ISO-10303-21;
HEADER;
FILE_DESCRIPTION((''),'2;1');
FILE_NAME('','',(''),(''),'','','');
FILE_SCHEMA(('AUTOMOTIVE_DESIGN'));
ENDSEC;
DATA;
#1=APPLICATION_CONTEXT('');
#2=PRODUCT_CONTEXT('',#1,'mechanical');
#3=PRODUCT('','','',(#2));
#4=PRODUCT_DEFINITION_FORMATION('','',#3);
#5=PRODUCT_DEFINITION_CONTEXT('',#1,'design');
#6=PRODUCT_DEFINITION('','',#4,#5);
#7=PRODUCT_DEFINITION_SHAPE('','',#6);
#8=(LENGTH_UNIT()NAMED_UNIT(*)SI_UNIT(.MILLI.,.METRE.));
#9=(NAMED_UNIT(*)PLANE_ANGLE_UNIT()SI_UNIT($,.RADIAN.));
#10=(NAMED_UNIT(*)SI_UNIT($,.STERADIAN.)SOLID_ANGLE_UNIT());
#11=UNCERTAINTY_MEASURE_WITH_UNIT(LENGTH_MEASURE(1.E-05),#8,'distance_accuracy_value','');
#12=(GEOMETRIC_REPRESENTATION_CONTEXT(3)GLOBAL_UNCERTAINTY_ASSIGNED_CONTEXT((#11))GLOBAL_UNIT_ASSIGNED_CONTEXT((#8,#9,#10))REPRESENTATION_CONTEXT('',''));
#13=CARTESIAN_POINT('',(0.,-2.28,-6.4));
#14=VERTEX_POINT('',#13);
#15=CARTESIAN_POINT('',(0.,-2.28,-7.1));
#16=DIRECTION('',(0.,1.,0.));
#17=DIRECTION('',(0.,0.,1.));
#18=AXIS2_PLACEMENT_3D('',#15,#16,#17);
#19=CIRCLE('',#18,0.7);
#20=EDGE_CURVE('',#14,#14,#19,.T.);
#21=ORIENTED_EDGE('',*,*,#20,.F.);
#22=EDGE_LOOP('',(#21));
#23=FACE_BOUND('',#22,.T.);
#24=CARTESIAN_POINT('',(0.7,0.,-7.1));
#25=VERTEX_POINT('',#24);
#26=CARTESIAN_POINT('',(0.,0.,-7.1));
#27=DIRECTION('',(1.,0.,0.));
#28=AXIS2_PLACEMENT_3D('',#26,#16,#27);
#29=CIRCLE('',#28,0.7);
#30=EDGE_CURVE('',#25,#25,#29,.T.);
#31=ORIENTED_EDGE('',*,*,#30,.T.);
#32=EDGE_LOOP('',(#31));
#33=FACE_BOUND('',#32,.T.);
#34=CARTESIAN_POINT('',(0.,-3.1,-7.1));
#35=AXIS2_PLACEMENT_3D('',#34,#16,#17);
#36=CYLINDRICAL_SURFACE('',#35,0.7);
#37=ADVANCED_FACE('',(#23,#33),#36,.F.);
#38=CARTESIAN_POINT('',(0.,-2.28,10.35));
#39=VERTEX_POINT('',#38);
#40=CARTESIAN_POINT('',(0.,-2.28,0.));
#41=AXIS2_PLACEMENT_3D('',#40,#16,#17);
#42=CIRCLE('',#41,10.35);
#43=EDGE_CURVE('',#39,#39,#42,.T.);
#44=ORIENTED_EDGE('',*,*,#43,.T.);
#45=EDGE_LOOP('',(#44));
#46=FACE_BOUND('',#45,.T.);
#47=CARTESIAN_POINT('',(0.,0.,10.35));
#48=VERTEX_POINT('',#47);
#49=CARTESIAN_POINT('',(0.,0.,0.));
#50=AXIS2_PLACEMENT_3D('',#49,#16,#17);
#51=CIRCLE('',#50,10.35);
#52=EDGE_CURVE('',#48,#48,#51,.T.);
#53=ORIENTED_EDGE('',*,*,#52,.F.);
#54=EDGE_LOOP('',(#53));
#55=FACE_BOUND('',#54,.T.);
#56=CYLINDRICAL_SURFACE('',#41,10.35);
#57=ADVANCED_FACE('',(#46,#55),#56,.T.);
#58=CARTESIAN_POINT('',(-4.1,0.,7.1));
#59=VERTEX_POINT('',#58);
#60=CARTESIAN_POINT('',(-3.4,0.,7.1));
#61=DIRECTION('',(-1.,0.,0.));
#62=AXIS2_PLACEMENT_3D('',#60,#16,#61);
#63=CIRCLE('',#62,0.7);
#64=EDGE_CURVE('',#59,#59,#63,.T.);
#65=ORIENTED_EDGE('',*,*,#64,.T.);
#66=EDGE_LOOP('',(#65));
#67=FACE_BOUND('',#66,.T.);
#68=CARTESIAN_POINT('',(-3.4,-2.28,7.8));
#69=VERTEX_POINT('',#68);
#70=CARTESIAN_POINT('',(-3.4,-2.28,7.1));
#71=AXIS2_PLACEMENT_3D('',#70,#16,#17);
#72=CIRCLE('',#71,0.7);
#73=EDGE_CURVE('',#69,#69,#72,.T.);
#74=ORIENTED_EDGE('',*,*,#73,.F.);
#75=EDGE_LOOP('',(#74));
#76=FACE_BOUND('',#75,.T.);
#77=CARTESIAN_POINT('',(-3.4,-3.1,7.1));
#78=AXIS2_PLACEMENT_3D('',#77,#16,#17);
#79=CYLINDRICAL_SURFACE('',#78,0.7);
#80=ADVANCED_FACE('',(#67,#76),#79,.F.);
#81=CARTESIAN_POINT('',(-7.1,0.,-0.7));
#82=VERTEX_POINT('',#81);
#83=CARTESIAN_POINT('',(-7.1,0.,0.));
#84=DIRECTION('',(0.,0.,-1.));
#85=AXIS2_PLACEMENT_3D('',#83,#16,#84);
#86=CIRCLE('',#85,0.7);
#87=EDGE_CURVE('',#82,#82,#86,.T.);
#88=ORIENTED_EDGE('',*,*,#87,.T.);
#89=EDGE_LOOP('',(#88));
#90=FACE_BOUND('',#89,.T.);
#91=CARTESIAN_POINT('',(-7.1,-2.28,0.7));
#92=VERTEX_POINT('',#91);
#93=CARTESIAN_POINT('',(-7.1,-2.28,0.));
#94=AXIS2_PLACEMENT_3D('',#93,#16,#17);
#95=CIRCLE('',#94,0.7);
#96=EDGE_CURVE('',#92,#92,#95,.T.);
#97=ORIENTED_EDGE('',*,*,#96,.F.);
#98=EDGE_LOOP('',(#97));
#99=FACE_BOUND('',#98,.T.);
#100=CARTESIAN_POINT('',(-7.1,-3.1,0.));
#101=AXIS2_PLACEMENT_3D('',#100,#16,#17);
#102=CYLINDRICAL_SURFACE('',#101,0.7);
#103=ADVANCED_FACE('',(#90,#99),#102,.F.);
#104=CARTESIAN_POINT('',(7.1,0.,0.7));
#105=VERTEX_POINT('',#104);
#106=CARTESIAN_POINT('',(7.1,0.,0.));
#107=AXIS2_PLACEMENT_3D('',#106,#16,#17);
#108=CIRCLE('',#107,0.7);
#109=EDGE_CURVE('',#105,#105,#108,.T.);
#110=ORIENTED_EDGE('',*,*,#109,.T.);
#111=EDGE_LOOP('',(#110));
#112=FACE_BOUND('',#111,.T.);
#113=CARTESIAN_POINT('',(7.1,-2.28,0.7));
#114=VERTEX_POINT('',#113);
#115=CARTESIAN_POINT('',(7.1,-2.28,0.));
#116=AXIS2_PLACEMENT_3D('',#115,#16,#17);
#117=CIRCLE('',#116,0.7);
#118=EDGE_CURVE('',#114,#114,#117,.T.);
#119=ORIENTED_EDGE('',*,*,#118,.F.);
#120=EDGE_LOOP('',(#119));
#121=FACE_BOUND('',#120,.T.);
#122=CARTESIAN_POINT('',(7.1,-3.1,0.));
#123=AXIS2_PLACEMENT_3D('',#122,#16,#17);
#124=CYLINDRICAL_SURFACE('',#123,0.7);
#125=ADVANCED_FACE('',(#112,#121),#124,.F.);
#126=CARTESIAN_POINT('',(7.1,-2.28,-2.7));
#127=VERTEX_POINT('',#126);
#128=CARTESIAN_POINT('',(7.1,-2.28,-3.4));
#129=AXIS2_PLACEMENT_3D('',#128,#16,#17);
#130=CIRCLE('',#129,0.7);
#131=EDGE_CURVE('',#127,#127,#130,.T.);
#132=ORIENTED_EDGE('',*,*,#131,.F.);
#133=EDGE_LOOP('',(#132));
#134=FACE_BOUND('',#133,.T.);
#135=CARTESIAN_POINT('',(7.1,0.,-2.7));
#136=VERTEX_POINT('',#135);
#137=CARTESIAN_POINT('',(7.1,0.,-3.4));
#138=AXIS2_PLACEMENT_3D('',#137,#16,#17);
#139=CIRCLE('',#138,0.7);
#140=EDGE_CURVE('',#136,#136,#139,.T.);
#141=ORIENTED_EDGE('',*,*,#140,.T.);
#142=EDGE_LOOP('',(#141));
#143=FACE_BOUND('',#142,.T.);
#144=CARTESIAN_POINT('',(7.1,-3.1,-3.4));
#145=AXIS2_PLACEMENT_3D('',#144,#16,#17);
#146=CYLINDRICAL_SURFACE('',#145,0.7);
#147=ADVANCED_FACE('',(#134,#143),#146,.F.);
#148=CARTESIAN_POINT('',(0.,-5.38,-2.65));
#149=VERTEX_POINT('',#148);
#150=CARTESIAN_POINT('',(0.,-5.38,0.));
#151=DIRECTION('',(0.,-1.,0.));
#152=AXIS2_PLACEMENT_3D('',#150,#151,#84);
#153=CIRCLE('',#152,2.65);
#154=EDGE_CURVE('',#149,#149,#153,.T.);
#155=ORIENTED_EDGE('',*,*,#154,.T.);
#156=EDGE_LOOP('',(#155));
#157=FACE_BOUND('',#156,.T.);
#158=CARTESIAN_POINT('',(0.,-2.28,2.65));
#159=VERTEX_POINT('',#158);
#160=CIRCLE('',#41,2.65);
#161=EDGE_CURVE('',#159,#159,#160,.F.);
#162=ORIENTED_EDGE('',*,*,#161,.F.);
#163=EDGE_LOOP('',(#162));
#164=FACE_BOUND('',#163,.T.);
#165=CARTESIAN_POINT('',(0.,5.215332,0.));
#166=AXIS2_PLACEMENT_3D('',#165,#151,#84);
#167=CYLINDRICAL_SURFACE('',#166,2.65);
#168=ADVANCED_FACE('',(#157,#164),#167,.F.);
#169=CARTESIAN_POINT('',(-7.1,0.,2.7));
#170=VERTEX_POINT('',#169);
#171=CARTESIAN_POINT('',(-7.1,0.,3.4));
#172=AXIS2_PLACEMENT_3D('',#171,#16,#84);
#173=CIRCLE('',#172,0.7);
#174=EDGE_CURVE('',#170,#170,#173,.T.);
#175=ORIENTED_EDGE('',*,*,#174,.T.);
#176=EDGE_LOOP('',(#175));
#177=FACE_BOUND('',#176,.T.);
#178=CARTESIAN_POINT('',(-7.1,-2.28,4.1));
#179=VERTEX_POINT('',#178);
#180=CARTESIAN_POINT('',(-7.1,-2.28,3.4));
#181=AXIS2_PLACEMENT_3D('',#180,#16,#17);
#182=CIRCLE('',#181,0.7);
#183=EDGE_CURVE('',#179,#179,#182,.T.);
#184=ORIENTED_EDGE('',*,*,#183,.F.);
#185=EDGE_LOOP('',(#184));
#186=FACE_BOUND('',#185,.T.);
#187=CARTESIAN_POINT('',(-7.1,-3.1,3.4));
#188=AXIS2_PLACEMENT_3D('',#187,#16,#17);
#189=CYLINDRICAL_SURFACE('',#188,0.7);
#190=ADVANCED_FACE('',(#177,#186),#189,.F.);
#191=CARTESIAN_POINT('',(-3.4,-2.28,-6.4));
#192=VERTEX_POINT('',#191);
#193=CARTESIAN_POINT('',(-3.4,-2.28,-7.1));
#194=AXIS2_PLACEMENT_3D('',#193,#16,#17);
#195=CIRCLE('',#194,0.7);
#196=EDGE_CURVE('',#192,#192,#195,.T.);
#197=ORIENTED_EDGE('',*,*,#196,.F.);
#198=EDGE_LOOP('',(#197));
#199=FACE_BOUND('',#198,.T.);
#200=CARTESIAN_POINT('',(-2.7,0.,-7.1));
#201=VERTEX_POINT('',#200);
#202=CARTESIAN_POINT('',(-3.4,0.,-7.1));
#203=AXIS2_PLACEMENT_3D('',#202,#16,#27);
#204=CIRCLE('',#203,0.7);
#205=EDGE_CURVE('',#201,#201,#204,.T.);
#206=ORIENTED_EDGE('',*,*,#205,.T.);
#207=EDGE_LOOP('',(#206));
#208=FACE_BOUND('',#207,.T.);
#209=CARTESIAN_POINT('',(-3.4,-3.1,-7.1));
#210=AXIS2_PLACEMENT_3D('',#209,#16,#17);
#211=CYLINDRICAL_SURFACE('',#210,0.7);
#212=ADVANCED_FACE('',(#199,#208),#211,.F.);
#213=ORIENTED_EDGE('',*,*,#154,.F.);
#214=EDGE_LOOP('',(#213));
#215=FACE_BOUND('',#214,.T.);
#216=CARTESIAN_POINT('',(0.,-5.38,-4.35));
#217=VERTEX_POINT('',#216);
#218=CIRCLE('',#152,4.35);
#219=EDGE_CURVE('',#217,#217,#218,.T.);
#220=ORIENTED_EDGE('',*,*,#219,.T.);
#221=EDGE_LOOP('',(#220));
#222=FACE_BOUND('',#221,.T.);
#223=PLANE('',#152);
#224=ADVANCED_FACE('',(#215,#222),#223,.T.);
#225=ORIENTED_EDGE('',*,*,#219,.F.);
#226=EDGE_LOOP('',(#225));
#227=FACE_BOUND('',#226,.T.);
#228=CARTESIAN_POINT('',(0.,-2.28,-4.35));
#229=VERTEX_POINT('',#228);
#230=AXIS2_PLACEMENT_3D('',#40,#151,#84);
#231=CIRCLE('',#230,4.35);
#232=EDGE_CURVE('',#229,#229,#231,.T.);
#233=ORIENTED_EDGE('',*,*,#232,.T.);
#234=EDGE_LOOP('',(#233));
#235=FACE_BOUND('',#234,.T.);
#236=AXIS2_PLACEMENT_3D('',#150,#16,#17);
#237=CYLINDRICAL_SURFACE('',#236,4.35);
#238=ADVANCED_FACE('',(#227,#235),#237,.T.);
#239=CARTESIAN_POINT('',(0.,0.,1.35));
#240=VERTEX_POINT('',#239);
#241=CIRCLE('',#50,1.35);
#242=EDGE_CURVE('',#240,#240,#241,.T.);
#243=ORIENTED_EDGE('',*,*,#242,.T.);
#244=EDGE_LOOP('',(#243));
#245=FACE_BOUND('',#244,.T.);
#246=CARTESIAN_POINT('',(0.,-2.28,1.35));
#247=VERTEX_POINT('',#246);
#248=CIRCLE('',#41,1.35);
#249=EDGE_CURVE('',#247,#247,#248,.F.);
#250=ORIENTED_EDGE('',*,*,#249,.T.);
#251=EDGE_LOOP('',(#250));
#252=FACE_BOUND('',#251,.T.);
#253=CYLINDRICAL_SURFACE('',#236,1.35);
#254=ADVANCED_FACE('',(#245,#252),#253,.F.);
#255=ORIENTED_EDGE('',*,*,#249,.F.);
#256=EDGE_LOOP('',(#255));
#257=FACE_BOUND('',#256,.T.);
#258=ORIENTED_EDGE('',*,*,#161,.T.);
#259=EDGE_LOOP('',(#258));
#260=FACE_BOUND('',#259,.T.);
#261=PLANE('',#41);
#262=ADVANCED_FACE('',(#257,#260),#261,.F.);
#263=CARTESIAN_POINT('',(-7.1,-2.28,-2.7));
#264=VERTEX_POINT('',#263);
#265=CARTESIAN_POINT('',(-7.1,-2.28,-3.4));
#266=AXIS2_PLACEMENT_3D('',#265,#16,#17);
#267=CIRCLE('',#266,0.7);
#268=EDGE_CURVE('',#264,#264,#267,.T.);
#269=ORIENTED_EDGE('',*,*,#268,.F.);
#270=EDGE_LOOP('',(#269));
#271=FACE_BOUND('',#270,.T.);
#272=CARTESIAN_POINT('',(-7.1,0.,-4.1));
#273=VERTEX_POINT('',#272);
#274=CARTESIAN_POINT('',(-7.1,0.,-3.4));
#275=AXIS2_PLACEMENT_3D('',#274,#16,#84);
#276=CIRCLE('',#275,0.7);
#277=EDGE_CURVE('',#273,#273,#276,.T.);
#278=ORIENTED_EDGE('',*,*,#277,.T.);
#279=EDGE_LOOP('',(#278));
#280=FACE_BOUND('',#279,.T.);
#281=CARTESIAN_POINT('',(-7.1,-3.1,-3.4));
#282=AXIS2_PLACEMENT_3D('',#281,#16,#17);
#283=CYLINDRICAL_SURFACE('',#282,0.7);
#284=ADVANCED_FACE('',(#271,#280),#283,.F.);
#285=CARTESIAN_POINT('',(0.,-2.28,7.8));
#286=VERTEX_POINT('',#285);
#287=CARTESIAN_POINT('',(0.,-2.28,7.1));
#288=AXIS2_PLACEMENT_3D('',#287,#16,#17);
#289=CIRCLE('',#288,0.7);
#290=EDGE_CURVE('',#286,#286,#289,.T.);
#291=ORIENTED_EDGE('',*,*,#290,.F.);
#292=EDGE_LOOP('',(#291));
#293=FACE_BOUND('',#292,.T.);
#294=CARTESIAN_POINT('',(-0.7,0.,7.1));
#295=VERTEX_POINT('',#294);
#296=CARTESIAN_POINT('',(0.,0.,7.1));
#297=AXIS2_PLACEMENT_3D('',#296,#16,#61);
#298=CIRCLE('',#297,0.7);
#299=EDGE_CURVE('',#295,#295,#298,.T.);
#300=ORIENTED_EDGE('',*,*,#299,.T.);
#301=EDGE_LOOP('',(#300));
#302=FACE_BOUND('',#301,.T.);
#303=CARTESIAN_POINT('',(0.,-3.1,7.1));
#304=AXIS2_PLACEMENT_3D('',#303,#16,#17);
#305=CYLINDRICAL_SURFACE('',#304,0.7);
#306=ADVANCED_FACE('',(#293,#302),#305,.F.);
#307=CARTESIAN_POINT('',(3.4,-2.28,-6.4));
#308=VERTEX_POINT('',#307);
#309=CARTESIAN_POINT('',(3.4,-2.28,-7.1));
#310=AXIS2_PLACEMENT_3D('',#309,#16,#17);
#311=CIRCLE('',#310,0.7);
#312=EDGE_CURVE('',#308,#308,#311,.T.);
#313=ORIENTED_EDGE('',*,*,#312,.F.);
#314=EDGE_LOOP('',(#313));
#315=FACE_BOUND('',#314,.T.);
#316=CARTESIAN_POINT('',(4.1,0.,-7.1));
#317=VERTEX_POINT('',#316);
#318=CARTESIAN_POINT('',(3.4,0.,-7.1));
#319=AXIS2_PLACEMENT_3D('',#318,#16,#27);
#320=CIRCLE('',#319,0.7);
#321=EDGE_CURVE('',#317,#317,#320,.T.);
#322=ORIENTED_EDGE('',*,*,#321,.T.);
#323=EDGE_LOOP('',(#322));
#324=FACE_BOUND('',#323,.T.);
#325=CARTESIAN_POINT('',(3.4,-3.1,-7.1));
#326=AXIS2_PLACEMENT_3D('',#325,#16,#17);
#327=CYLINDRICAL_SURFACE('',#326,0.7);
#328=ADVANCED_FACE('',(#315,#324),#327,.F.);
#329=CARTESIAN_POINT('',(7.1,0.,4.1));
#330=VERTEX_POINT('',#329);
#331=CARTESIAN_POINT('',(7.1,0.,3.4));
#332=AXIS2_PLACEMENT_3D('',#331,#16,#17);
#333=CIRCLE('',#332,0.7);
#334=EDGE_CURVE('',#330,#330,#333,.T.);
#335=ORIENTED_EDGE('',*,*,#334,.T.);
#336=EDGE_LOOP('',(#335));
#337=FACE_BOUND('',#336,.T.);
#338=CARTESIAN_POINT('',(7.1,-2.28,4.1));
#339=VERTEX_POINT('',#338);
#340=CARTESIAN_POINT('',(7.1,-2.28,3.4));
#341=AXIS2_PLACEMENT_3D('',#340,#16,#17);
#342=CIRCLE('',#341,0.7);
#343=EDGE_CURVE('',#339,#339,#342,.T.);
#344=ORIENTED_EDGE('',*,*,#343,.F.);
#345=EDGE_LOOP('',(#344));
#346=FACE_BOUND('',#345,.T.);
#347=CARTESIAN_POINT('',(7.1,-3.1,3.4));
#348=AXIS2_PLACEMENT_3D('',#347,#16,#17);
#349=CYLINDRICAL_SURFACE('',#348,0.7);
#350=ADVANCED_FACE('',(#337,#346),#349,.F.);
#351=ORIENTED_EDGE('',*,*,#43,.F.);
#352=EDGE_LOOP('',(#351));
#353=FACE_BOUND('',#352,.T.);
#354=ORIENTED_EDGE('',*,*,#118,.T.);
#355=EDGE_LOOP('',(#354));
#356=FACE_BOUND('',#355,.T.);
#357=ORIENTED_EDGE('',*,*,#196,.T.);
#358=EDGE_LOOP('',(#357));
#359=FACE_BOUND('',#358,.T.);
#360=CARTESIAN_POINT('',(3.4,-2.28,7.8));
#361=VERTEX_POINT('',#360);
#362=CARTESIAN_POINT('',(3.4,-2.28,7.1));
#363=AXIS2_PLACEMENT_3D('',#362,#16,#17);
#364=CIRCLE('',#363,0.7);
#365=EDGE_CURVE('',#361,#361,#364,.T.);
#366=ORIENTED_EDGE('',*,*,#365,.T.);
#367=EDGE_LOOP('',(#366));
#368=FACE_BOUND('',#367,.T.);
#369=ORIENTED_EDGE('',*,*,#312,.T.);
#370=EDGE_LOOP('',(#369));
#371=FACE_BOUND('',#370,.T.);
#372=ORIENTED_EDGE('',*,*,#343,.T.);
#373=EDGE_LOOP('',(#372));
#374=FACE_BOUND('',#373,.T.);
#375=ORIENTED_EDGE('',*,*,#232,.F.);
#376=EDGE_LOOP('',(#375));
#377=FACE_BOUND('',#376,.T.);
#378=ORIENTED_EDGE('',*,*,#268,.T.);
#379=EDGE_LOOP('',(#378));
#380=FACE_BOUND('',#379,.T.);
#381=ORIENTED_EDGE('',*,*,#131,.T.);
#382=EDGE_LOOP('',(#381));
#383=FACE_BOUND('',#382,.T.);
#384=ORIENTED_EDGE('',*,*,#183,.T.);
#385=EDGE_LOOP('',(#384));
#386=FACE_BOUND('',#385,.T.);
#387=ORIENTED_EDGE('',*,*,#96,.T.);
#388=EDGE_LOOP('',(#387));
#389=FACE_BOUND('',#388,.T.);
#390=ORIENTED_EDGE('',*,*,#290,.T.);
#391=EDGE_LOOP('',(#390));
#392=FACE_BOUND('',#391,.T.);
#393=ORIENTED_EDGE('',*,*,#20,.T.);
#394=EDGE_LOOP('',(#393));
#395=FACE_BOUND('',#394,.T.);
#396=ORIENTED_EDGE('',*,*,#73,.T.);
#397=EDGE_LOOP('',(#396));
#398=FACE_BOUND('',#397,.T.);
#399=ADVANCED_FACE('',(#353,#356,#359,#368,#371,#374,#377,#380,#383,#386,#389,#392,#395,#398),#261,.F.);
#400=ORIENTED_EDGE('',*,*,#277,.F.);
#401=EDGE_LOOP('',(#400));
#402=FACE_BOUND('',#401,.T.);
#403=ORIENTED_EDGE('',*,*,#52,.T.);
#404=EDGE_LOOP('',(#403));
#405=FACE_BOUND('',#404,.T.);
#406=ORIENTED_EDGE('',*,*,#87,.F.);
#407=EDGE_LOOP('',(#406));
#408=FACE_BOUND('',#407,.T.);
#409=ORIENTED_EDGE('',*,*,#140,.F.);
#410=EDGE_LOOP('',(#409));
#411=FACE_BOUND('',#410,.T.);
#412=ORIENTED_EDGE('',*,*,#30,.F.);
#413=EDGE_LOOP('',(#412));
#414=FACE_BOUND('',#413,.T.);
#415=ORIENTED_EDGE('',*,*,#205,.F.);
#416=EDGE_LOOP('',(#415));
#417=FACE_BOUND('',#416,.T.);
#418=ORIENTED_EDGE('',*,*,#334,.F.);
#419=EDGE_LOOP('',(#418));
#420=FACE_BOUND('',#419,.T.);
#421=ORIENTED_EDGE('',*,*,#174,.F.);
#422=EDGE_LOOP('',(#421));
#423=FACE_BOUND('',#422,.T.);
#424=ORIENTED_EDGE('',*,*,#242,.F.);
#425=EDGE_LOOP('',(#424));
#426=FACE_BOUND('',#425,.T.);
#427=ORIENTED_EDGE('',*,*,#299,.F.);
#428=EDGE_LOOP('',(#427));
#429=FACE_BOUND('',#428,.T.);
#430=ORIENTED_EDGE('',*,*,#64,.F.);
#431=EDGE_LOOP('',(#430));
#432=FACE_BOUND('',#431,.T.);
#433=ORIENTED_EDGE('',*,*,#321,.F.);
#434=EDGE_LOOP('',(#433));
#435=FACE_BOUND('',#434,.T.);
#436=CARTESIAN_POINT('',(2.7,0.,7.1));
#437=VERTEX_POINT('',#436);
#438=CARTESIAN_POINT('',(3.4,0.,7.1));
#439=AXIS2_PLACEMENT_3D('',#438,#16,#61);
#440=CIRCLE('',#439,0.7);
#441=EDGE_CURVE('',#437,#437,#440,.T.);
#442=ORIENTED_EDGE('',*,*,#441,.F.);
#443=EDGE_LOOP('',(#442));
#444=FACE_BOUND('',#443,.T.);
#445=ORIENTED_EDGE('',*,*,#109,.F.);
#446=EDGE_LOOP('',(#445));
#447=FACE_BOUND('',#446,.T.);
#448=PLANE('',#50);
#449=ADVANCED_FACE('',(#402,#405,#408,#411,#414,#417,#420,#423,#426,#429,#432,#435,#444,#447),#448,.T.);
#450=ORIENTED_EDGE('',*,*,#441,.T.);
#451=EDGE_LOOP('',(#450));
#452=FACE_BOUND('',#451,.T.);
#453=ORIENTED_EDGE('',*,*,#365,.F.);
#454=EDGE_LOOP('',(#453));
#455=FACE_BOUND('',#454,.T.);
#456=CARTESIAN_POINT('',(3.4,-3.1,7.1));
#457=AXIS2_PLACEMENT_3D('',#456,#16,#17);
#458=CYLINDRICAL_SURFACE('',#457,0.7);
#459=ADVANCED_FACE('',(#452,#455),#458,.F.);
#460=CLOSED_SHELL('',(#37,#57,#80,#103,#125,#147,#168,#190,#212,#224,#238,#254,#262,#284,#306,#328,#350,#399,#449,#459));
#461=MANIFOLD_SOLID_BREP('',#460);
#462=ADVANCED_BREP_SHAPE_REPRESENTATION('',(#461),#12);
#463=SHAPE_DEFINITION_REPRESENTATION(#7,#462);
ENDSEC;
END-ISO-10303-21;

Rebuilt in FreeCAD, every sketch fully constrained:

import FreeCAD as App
import Part
import Sketcher
from FreeCAD import Vector

doc = App.newDocument("Part")
params = doc.addObject("Spreadsheet::Sheet", "Params")
for row, (alias, value) in enumerate([
    ("sketch1_diameter", "20.7 mm"),
    ("pad1_length", "2.28 mm"),
    ("sketch2_diameter", "8.7 mm"),
    ("pad2_length", "3.1 mm"),
    ("sketch3_diameter", "2.7 mm"),
    ("sketch4_diameter", "5.3 mm"),
    ("pocket2_length", "3.1 mm"),
    ("sketch5_diameter", "1.4 mm"),
    ("pocket3_length", "3.1 mm"),
], start=1):
    params.set(f"A{row}", alias)
    params.set(f"B{row}", "=" + value)
    params.setAlias(f"B{row}", alias)

body = doc.addObject("PartDesign::Body", "Body")

# Sketch on XZ plane
sketch1 = body.newObject("Sketcher::SketchObject", "Sketch")
sketch1.AttachmentSupport = (doc.getObject("XZ_Plane"), [""])
sketch1.MapMode = "FlatFace"
sketch1.addGeometry(Part.Circle(Vector(0, 0, 0), Vector(0, 0, 1), 10), False)
sketch1.addConstraint(Sketcher.Constraint("Coincident", 0, 3, -1, 1))
sketch1.addConstraint(Sketcher.Constraint("Diameter", 0, 20.7))
sketch1.setExpression("Constraints[1]", "Params.sketch1_diameter")
pad1 = body.newObject("PartDesign::Pad", "Pad")
pad1.Profile = sketch1
pad1.setExpression("Length", "Params.pad1_length")

# Sketch on XZ plane
sketch2 = body.newObject("Sketcher::SketchObject", "Sketch001")
sketch2.AttachmentSupport = (doc.getObject("XZ_Plane"), [""])
sketch2.MapMode = "FlatFace"
sketch2.AttachmentOffset = App.Placement(Vector(0, 0, 2.28), App.Rotation())
sketch2.addGeometry(Part.Circle(Vector(0, 0, 0), Vector(0, 0, 1), 4.3), False)
sketch2.addConstraint(Sketcher.Constraint("Coincident", 0, 3, -1, 1))
sketch2.addConstraint(Sketcher.Constraint("Diameter", 0, 8.7))
sketch2.setExpression("Constraints[1]", "Params.sketch2_diameter")
pad2 = body.newObject("PartDesign::Pad", "Pad001")
pad2.Profile = sketch2
pad2.setExpression("Length", "Params.pad2_length")

# Sketch on XZ plane
sketch3 = body.newObject("Sketcher::SketchObject", "Sketch002")
sketch3.AttachmentSupport = (doc.getObject("XZ_Plane"), [""])
sketch3.MapMode = "FlatFace"
sketch3.addGeometry(Part.Circle(Vector(0, 0, 0), Vector(0, 0, 1), 1.4), False)
sketch3.addConstraint(Sketcher.Constraint("Coincident", 0, 3, -1, 1))
sketch3.addConstraint(Sketcher.Constraint("Diameter", 0, 2.7))
sketch3.setExpression("Constraints[1]", "Params.sketch3_diameter")
pocket1 = body.newObject("PartDesign::Pocket", "Pocket")
pocket1.Profile = sketch3
pocket1.Type = "ThroughAll"
pocket1.Reversed = True

# Sketch on XZ plane
sketch4 = body.newObject("Sketcher::SketchObject", "Sketch003")
sketch4.AttachmentSupport = (doc.getObject("XZ_Plane"), [""])
sketch4.MapMode = "FlatFace"
sketch4.AttachmentOffset = App.Placement(Vector(0, 0, 5.38), App.Rotation())
sketch4.addGeometry(Part.Circle(Vector(0, 0, 0), Vector(0, 0, 1), 2.6), False)
sketch4.addConstraint(Sketcher.Constraint("Coincident", 0, 3, -1, 1))
sketch4.addConstraint(Sketcher.Constraint("Diameter", 0, 5.3))
sketch4.setExpression("Constraints[1]", "Params.sketch4_diameter")
pocket2 = body.newObject("PartDesign::Pocket", "Pocket001")
pocket2.Profile = sketch4
pocket2.setExpression("Length", "Params.pocket2_length")

# Sketch on XZ plane
sketch5 = body.newObject("Sketcher::SketchObject", "Sketch004")
sketch5.AttachmentSupport = (doc.getObject("XZ_Plane"), [""])
sketch5.MapMode = "FlatFace"
sketch5.addGeometry(Part.Circle(Vector(7.1, -3.4, 0), Vector(0, 0, 1), 0.7), False)
sketch5.addGeometry(Part.Circle(Vector(7.1, 0, 0), Vector(0, 0, 1), 0.7), False)
sketch5.addGeometry(Part.Circle(Vector(7.1, 3.4, 0), Vector(0, 0, 1), 0.7), False)
sketch5.addConstraint(Sketcher.Constraint("Equal", 0, 1))
sketch5.addConstraint(Sketcher.Constraint("Equal", 1, 2))
sketch5.addConstraint(Sketcher.Constraint("Symmetric", 0, 3, 2, 3, -1))
sketch5.addConstraint(Sketcher.Constraint("PointOnObject", 1, 3, -1))
sketch5.addConstraint(Sketcher.Constraint("Vertical", 0, 3, 1, 3))
sketch5.addConstraint(Sketcher.Constraint("Diameter", 0, 1.4))
sketch5.addConstraint(Sketcher.Constraint("DistanceX", -1, 1, 0, 3, 7.1))
sketch5.addConstraint(Sketcher.Constraint("DistanceY", 0, 3, -1, 1, 3.4))
sketch5.setExpression("Constraints[5]", "Params.sketch5_diameter")
pocket3 = body.newObject("PartDesign::Pocket", "Pocket002")
pocket3.Profile = sketch5
pocket3.setExpression("Length", "Params.pocket3_length")
pocket3.Reversed = True
doc.recompute()

polarpattern = body.newObject("PartDesign::PolarPattern", "PolarPattern")
polarpattern.Originals = [pocket3]
polarpattern.Axis = (doc.getObject("Y_Axis"), [""])
polarpattern.Angle = 360
polarpattern.Occurrences = 4
body.Tip = polarpattern

doc.recompute()
